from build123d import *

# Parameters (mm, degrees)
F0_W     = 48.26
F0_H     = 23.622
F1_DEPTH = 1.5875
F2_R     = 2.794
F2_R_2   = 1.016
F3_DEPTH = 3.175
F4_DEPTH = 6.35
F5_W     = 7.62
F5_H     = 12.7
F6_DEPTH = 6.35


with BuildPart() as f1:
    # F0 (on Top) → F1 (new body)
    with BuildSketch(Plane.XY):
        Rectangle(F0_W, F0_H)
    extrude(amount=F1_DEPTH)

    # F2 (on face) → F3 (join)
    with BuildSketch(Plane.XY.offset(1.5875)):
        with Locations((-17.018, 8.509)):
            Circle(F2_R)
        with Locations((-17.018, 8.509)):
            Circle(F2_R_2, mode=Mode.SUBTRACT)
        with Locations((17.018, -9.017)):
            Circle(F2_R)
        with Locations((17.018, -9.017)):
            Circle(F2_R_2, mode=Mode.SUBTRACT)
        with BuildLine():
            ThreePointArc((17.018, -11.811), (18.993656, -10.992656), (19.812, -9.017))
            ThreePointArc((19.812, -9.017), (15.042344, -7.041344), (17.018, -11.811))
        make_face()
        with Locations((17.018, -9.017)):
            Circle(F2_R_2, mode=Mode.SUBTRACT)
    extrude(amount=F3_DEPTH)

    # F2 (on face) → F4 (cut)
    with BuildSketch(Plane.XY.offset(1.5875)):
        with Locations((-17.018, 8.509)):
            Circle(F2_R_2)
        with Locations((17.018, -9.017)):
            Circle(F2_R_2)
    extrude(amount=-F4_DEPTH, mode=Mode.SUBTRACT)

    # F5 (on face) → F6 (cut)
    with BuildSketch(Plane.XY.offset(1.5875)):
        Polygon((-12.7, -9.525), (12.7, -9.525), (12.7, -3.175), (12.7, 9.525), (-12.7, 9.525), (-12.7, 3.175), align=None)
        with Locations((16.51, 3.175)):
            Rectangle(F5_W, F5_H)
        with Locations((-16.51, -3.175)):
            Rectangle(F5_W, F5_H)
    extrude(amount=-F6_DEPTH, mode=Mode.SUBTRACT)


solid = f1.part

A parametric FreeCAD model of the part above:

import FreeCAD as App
import Part
import Sketcher
Q = App.Units.Quantity

doc = App.newDocument("Part")
body = doc.addObject("PartDesign::Body", "Body")

# Sketch on XY plane
sketch1 = body.newObject("Sketcher::SketchObject", "Sketch")
sketch1.AttachmentSupport = (doc.getObject("XY_Plane"), [""])
sketch1.MapMode = "FlatFace"
sketch1.addGeometry([
    Part.LineSegment(App.Vector(-24, 12, 0), App.Vector(-24, -12, 0)),
    Part.LineSegment(App.Vector(-24, -12, 0), App.Vector(24, -12, 0)),
    Part.LineSegment(App.Vector(24, -12, 0), App.Vector(24, 12, 0)),
    Part.LineSegment(App.Vector(24, 12, 0), App.Vector(-24, 12, 0)),
], False)
sketch1.addConstraint([
    Sketcher.Constraint("Coincident", 0, 2, 1, 1),
    Sketcher.Constraint("Coincident", 1, 2, 2, 1),
    Sketcher.Constraint("Coincident", 2, 2, 3, 1),
    Sketcher.Constraint("Coincident", 3, 2, 0, 1),
    Sketcher.Constraint("Vertical", 0),
    Sketcher.Constraint("Horizontal", 1),
    Sketcher.Constraint("Vertical", 2),
    Sketcher.Constraint("Horizontal", 3),
    Sketcher.Constraint("Symmetric", 0, 2, 2, 2, -1, 1),
    Sketcher.Constraint("DistanceX", 1, 1, 1, 2, Q("1.9 in")),
    Sketcher.Constraint("DistanceY", 0, 2, 0, 1, Q("0.93 in")),
])
pad1 = body.newObject("PartDesign::Pad", "Pad")
pad1.Profile = sketch1
pad1.Length = Q("0.0625 in")

# Sketch on XY plane
sketch2 = body.newObject("Sketcher::SketchObject", "Sketch001")
sketch2.AttachmentSupport = (doc.getObject("XY_Plane"), [""])
sketch2.MapMode = "FlatFace"
sketch2.AttachmentOffset = App.Placement(App.Vector(0, 0, 0.0625 * 25.4), App.Rotation())
sketch2.addGeometry([
    Part.Circle(App.Vector(-17, 8.5, 0), App.Vector(0, 0, 1), 2.8),
    Part.Circle(App.Vector(-17, 8.5, 0), App.Vector(0, 0, 1), 1),
    Part.Circle(App.Vector(17, -9, 0), App.Vector(0, 0, 1), 2.8),
    Part.Circle(App.Vector(17, -9, 0), App.Vector(0, 0, 1), 1),
], False)
sketch2.addConstraint([
    Sketcher.Constraint("Coincident", 1, 3, 0, 3),
    Sketcher.Constraint("Coincident", 3, 3, 2, 3),
    Sketcher.Constraint("Equal", 0, 2),
    Sketcher.Constraint("Equal", 1, 3),
    Sketcher.Constraint("Diameter", 0, Q("0.22 in")),
    Sketcher.Constraint("Diameter", 1, Q("0.08 in")),
    Sketcher.Constraint("DistanceX", 0, 3, -1, 1, Q("0.67 in")),
    Sketcher.Constraint("DistanceX", -1, 1, 2, 3, Q("0.67 in")),
    Sketcher.Constraint("DistanceY", 2, 3, 0, 3, Q("0.69 in")),
    Sketcher.Constraint("DistanceY", -1, 1, 0, 3, Q("0.335 in")),
])
pad2 = body.newObject("PartDesign::Pad", "Pad001")
pad2.Profile = sketch2
pad2.Length = Q("0.125 in")

# Sketch on XY plane
sketch3 = body.newObject("Sketcher::SketchObject", "Sketch002")
sketch3.AttachmentSupport = (doc.getObject("XY_Plane"), [""])
sketch3.MapMode = "FlatFace"
sketch3.AttachmentOffset = App.Placement(App.Vector(0, 0, 0.0625 * 25.4), App.Rotation())
sketch3.addGeometry([
    Part.Circle(App.Vector(-17, 8.5, 0), App.Vector(0, 0, 1), 1),
    Part.Circle(App.Vector(17, -9, 0), App.Vector(0, 0, 1), 1),
], False)
sketch3.addConstraint([
    Sketcher.Constraint("Equal", 0, 1),
    Sketcher.Constraint("Diameter", 0, Q("0.08 in")),
    Sketcher.Constraint("DistanceX", 0, 3, -1, 1, Q("0.67 in")),
    Sketcher.Constraint("DistanceX", -1, 1, 1, 3, Q("0.67 in")),
    Sketcher.Constraint("DistanceY", 1, 3, 0, 3, Q("0.69 in")),
    Sketcher.Constraint("DistanceY", -1, 1, 0, 3, Q("0.335 in")),
])
pocket1 = body.newObject("PartDesign::Pocket", "Pocket")
pocket1.Profile = sketch3
pocket1.Length = Q("0.25 in")

# Sketch on XY plane
sketch4 = body.newObject("Sketcher::SketchObject", "Sketch003")
sketch4.AttachmentSupport = (doc.getObject("XY_Plane"), [""])
sketch4.MapMode = "FlatFace"
sketch4.AttachmentOffset = App.Placement(App.Vector(0, 0, 0.0625 * 25.4), App.Rotation())
sketch4.addGeometry([
    Part.LineSegment(App.Vector(13, -10, 0), App.Vector(13, -3, 0)),  # 0
    Part.LineSegment(App.Vector(13, -3, 0), App.Vector(20, -3, 0)),  # 1
    Part.LineSegment(App.Vector(20, -3, 0), App.Vector(20, 10, 0)),  # 2
    Part.LineSegment(App.Vector(20, 10, 0), App.Vector(-13, 10, 0)),  # 3
    Part.LineSegment(App.Vector(-13, 10, 0), App.Vector(-13, 3, 0)),  # 4
    Part.LineSegment(App.Vector(-13, 3, 0), App.Vector(-20, 3, 0)),  # 5
    Part.LineSegment(App.Vector(-20, 3, 0), App.Vector(-20, -10, 0)),  # 6
    Part.LineSegment(App.Vector(-20, -10, 0), App.Vector(13, -10, 0)),  # 7
], False)
sketch4.addConstraint([
    Sketcher.Constraint("Coincident", 0, 2, 1, 1),
    Sketcher.Constraint("Coincident", 1, 2, 2, 1),
    Sketcher.Constraint("Coincident", 2, 2, 3, 1),
    Sketcher.Constraint("Coincident", 3, 2, 4, 1),
    Sketcher.Constraint("Coincident", 4, 2, 5, 1),
    Sketcher.Constraint("Coincident", 5, 2, 6, 1),
    Sketcher.Constraint("Coincident", 6, 2, 7, 1),
    Sketcher.Constraint("Coincident", 7, 2, 0, 1),
    Sketcher.Constraint("Vertical", 0),
    Sketcher.Constraint("Horizontal", 1),
    Sketcher.Constraint("Vertical", 2),
    Sketcher.Constraint("Horizontal", 3),
    Sketcher.Constraint("Vertical", 4),
    Sketcher.Constraint("Horizontal", 5),
    Sketcher.Constraint("Vertical", 6),
    Sketcher.Constraint("Horizontal", 7),
    Sketcher.Constraint("Symmetric", 0, 2, 4, 2, -1, 1),
    Sketcher.Constraint("Symmetric", 2, 2, 6, 2, -1, 1),
    Sketcher.Constraint("DistanceX", 1, 1, 1, 2, Q("0.3 in")),
    Sketcher.Constraint("DistanceX", 3, 2, 3, 1, Q("1.3 in")),
    Sketcher.Constraint("DistanceY", 2, 1, 2, 2, Q("0.5 in")),
    Sketcher.Constraint("DistanceY", 0, 1, 0, 2, Q("0.25 in")),
])
pocket2 = body.newObject("PartDesign::Pocket", "Pocket001")
pocket2.Profile = sketch4
pocket2.Length = Q("0.25 in")

doc.recompute()
